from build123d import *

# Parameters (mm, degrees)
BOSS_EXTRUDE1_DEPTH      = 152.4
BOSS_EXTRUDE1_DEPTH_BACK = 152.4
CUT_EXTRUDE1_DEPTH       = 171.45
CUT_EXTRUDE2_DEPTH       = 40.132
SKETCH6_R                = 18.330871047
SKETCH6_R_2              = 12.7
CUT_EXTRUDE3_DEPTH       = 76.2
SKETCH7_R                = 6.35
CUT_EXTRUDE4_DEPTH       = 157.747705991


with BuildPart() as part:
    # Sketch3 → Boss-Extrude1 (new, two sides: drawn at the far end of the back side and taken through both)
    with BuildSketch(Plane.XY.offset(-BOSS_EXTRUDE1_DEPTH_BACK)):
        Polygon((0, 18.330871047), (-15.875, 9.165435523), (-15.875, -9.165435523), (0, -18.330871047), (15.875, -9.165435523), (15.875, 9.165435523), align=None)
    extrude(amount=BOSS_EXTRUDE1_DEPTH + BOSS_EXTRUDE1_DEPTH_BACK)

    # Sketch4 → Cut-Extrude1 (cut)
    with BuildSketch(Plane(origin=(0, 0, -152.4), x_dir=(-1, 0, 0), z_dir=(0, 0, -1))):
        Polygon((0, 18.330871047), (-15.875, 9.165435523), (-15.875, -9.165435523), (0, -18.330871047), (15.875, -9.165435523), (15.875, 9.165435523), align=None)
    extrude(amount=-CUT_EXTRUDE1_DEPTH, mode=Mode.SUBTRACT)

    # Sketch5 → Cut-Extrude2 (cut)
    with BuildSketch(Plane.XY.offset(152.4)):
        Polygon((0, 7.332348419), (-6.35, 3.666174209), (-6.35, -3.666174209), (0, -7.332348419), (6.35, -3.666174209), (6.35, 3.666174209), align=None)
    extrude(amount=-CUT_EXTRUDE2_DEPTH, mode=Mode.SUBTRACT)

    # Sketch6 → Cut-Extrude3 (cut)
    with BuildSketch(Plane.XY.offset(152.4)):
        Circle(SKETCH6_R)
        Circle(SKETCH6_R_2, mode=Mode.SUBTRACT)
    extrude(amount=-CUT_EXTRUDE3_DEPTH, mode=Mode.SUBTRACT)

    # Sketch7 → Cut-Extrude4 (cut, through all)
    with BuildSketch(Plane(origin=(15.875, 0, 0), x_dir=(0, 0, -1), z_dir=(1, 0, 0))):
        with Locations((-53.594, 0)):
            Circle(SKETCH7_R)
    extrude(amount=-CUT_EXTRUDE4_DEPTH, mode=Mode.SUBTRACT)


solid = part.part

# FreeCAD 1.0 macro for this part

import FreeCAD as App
import Part
import Sketcher
from FreeCAD import Vector
Q = App.Units.Quantity

doc = App.newDocument("Part")
body = doc.addObject("PartDesign::Body", "Body")

# Sketch on XY plane
sketch1 = body.newObject("Sketcher::SketchObject", "Sketch")
sketch1.AttachmentSupport = (doc.getObject("XY_Plane"), [""])
sketch1.MapMode = "FlatFace"
sketch1.addGeometry(Part.LineSegment(Vector(0, 18, 0), Vector(-16, 9, 0)), False)
sketch1.addGeometry(Part.LineSegment(Vector(-16, 9, 0), Vector(-16, -9, 0)), False)
sketch1.addGeometry(Part.LineSegment(Vector(-16, -9, 0), Vector(0, -18, 0)), False)
sketch1.addGeometry(Part.LineSegment(Vector(0, -18, 0), Vector(16, -9, 0)), False)
sketch1.addGeometry(Part.LineSegment(Vector(16, -9, 0), Vector(16, 9, 0)), False)
sketch1.addGeometry(Part.LineSegment(Vector(16, 9, 0), Vector(0, 18, 0)), False)
sketch1.addConstraint(Sketcher.Constraint("Coincident", 0, 2, 1, 1))
sketch1.addConstraint(Sketcher.Constraint("Coincident", 1, 2, 2, 1))
sketch1.addConstraint(Sketcher.Constraint("Coincident", 2, 2, 3, 1))
sketch1.addConstraint(Sketcher.Constraint("Coincident", 3, 2, 4, 1))
sketch1.addConstraint(Sketcher.Constraint("Coincident", 4, 2, 5, 1))
sketch1.addConstraint(Sketcher.Constraint("Coincident", 5, 2, 0, 1))
sketch1.addConstraint(Sketcher.Constraint("Vertical", 1))
sketch1.addConstraint(Sketcher.Constraint("Vertical", 4))
sketch1.addConstraint(Sketcher.Constraint("Symmetric", 0, 2, 3, 2, -1, 1))
sketch1.addConstraint(Sketcher.Constraint("Symmetric", 2, 2, 5, 2, -1, 1))
sketch1.addConstraint(Sketcher.Constraint("PointOnObject", 2, 2, -2))
sketch1.addConstraint(Sketcher.Constraint("Parallel", 2, 5))
sketch1.addConstraint(Sketcher.Constraint("Horizontal", 1, 2, 3, 2))
sketch1.addConstraint(Sketcher.Constraint("Angle", 0, Q("-150 deg")))
sketch1.addConstraint(Sketcher.Constraint("DistanceX", 1, 2, 3, 2, Q("1.25 in")))
sketch1.addConstraint(Sketcher.Constraint("DistanceY", 1, 2, 1, 1, Q("18.330871 mm")))
pad1 = body.newObject("PartDesign::Pad", "Pad")
pad1.Profile = sketch1
pad1.Type = "TwoLengths"
pad1.Length = Q("6 in")
pad1.Length2 = Q("6 in")

# Sketch on XY plane
sketch2 = body.newObject("Sketcher::SketchObject", "Sketch001")
sketch2.AttachmentSupport = (doc.getObject("XY_Plane"), [""])
sketch2.MapMode = "FlatFace"
sketch2.AttachmentOffset = App.Placement(Vector(0, 0, -6 * 25.4), App.Rotation())
sketch2.addGeometry(Part.LineSegment(Vector(0, 18, 0), Vector(16, 9, 0)), False)
sketch2.addGeometry(Part.LineSegment(Vector(16, 9, 0), Vector(16, -9, 0)), False)
sketch2.addGeometry(Part.LineSegment(Vector(16, -9, 0), Vector(0, -18, 0)), False)
sketch2.addGeometry(Part.LineSegment(Vector(0, -18, 0), Vector(-16, -9, 0)), False)
sketch2.addGeometry(Part.LineSegment(Vector(-16, -9, 0), Vector(-16, 9, 0)), False)
sketch2.addGeometry(Part.LineSegment(Vector(-16, 9, 0), Vector(0, 18, 0)), False)
sketch2.addConstraint(Sketcher.Constraint("Coincident", 0, 2, 1, 1))
sketch2.addConstraint(Sketcher.Constraint("Coincident", 1, 2, 2, 1))
sketch2.addConstraint(Sketcher.Constraint("Coincident", 2, 2, 3, 1))
sketch2.addConstraint(Sketcher.Constraint("Coincident", 3, 2, 4, 1))
sketch2.addConstraint(Sketcher.Constraint("Coincident", 4, 2, 5, 1))
sketch2.addConstraint(Sketcher.Constraint("Coincident", 5, 2, 0, 1))
sketch2.addConstraint(Sketcher.Constraint("Vertical", 1))
sketch2.addConstraint(Sketcher.Constraint("Vertical", 4))
sketch2.addConstraint(Sketcher.Constraint("Symmetric", 0, 2, 3, 2, -1, 1))
sketch2.addConstraint(Sketcher.Constraint("Symmetric", 2, 2, 5, 2, -1, 1))
sketch2.addConstraint(Sketcher.Constraint("PointOnObject", 2, 2, -2))
sketch2.addConstraint(Sketcher.Constraint("Parallel", 2, 5))
sketch2.addConstraint(Sketcher.Constraint("Horizontal", 1, 2, 3, 2))
sketch2.addConstraint(Sketcher.Constraint("Angle", 0, Q("-30 deg")))
sketch2.addConstraint(Sketcher.Constraint("DistanceX", 3, 2, 1, 2, Q("1.25 in")))
sketch2.addConstraint(Sketcher.Constraint("DistanceY", 1, 2, 1, 1, Q("18.330871 mm")))
pocket1 = body.newObject("PartDesign::Pocket", "Pocket")
pocket1.Profile = sketch2
pocket1.Length = Q("6.75 in")
pocket1.Reversed = True

# Sketch on XY plane
sketch3 = body.newObject("Sketcher::SketchObject", "Sketch002")
sketch3.AttachmentSupport = (doc.getObject("XY_Plane"), [""])
sketch3.MapMode = "FlatFace"
sketch3.AttachmentOffset = App.Placement(Vector(0, 0, 6 * 25.4), App.Rotation())
sketch3.addGeometry(Part.LineSegment(Vector(0, 7, 0), Vector(-6, 4, 0)), False)
sketch3.addGeometry(Part.LineSegment(Vector(-6, 4, 0), Vector(-6, -4, 0)), False)
sketch3.addGeometry(Part.LineSegment(Vector(-6, -4, 0), Vector(0, -7, 0)), False)
sketch3.addGeometry(Part.LineSegment(Vector(0, -7, 0), Vector(6, -4, 0)), False)
sketch3.addGeometry(Part.LineSegment(Vector(6, -4, 0), Vector(6, 4, 0)), False)
sketch3.addGeometry(Part.LineSegment(Vector(6, 4, 0), Vector(0, 7, 0)), False)
sketch3.addConstraint(Sketcher.Constraint("Coincident", 0, 2, 1, 1))
sketch3.addConstraint(Sketcher.Constraint("Coincident", 1, 2, 2, 1))
sketch3.addConstraint(Sketcher.Constraint("Coincident", 2, 2, 3, 1))
sketch3.addConstraint(Sketcher.Constraint("Coincident", 3, 2, 4, 1))
sketch3.addConstraint(Sketcher.Constraint("Coincident", 4, 2, 5, 1))
sketch3.addConstraint(Sketcher.Constraint("Coincident", 5, 2, 0, 1))
sketch3.addConstraint(Sketcher.Constraint("Vertical", 1))
sketch3.addConstraint(Sketcher.Constraint("Vertical", 4))
sketch3.addConstraint(Sketcher.Constraint("Symmetric", 0, 2, 3, 2, -1, 1))
sketch3.addConstraint(Sketcher.Constraint("Symmetric", 2, 2, 5, 2, -1, 1))
sketch3.addConstraint(Sketcher.Constraint("PointOnObject", 2, 2, -2))
sketch3.addConstraint(Sketcher.Constraint("Parallel", 2, 5))
sketch3.addConstraint(Sketcher.Constraint("Horizontal", 1, 2, 3, 2))
sketch3.addConstraint(Sketcher.Constraint("Angle", 0, Q("-150 deg")))
sketch3.addConstraint(Sketcher.Constraint("DistanceX", 1, 2, 3, 2, Q("0.5 in")))
sketch3.addConstraint(Sketcher.Constraint("DistanceY", 1, 2, 1, 1, Q("7.332348 mm")))
pocket2 = body.newObject("PartDesign::Pocket", "Pocket001")
pocket2.Profile = sketch3
pocket2.Length = Q("1.58 in")

# Sketch on XY plane
sketch4 = body.newObject("Sketcher::SketchObject", "Sketch003")
sketch4.AttachmentSupport = (doc.getObject("XY_Plane"), [""])
sketch4.MapMode = "FlatFace"
sketch4.AttachmentOffset = App.Placement(Vector(0, 0, 6 * 25.4), App.Rotation())
sketch4.addGeometry(Part.Circle(Vector(0, 0, 0), Vector(0, 0, 1), 18), False)
sketch4.addGeometry(Part.Circle(Vector(0, 0, 0), Vector(0, 0, 1), 13), False)
sketch4.addConstraint(Sketcher.Constraint("Coincident", 0, 3, -1, 1))
sketch4.addConstraint(Sketcher.Constraint("Coincident", 1, 3, -1, 1))
sketch4.addConstraint(Sketcher.Constraint("Diameter", 1, Q("1 in")))
sketch4.addConstraint(Sketcher.Constraint("Diameter", 0, Q("36.661742 mm")))
pocket3 = body.newObject("PartDesign::Pocket", "Pocket002")
pocket3.Profile = sketch4
pocket3.Length = Q("3 in")

# Sketch on YZ plane
sketch5 = body.newObject("Sketcher::SketchObject", "Sketch004")
sketch5.AttachmentSupport = (doc.getObject("YZ_Plane"), [""])
sketch5.MapMode = "FlatFace"
sketch5.AttachmentOffset = App.Placement(Vector(0, 0, 0.625 * 25.4), App.Rotation())
sketch5.addGeometry(Part.Circle(Vector(0, 54, 0), Vector(0, 0, 1), 6), False)
sketch5.addConstraint(Sketcher.Constraint("PointOnObject", 0, 3, -2))
sketch5.addConstraint(Sketcher.Constraint("Diameter", 0, Q("0.5 in")))
sketch5.addConstraint(Sketcher.Constraint("DistanceY", -1, 1, 0, 3, Q("2.11 in")))
pocket4 = body.newObject("PartDesign::Pocket", "Pocket003")
pocket4.Profile = sketch5
pocket4.Type = "ThroughAll"

doc.recompute()
